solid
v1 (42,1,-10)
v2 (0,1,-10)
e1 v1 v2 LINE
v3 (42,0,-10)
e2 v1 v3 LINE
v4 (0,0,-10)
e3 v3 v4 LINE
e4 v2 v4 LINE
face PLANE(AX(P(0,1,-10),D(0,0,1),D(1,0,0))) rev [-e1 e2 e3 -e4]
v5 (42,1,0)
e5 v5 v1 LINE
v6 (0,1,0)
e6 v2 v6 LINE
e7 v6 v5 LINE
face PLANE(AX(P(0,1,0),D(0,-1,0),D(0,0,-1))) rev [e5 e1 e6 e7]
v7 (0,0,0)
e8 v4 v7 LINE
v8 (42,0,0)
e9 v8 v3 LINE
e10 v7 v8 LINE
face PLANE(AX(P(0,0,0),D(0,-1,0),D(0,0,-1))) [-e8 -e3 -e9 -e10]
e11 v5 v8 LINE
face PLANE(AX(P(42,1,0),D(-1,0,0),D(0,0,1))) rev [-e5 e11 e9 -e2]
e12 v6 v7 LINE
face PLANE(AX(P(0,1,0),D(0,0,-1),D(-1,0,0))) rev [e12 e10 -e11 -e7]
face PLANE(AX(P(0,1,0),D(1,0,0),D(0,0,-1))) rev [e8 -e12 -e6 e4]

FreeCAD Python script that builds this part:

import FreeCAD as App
import Part
import Sketcher

V = App.Vector
Q = App.Units.Quantity

doc = App.newDocument("Part")
body = doc.addObject("PartDesign::Body", "Body")

sketch1 = body.newObject("Sketcher::SketchObject", "Sketch")
sketch1.AttachmentSupport = (doc.getObject("XZ_Plane"), [""])
sketch1.MapMode = "FlatFace"
sketch1.addGeometry(Part.LineSegment(V(0, -10, 0), V(0, 0, 0)), False)
sketch1.addGeometry(Part.LineSegment(V(0, 0, 0), V(42, 0, 0)), False)
sketch1.addGeometry(Part.LineSegment(V(42, 0, 0), V(42, -10, 0)), False)
sketch1.addGeometry(Part.LineSegment(V(42, -10, 0), V(0, -10, 0)), False)
sketch1.addConstraint(Sketcher.Constraint("Coincident", 0, 2, 1, 1))
sketch1.addConstraint(Sketcher.Constraint("Coincident", 1, 2, 2, 1))
sketch1.addConstraint(Sketcher.Constraint("Coincident", 2, 2, 3, 1))
sketch1.addConstraint(Sketcher.Constraint("Coincident", 3, 2, 0, 1))
sketch1.addConstraint(Sketcher.Constraint("Vertical", 0))
sketch1.addConstraint(Sketcher.Constraint("Horizontal", 1))
sketch1.addConstraint(Sketcher.Constraint("Vertical", 2))
sketch1.addConstraint(Sketcher.Constraint("Horizontal", 3))
sketch1.addConstraint(Sketcher.Constraint("Coincident", 0, 2, -1, 1))
sketch1.addConstraint(Sketcher.Constraint("DistanceX", 1, 1, 1, 2, Q("42 mm")))
sketch1.addConstraint(Sketcher.Constraint("DistanceY", 0, 1, 0, 2, Q("10 mm")))
pad1 = body.newObject("PartDesign::Pad", "Pad")
pad1.Profile = sketch1
pad1.Length = 1
pad1.Reversed = True

doc.recompute()
